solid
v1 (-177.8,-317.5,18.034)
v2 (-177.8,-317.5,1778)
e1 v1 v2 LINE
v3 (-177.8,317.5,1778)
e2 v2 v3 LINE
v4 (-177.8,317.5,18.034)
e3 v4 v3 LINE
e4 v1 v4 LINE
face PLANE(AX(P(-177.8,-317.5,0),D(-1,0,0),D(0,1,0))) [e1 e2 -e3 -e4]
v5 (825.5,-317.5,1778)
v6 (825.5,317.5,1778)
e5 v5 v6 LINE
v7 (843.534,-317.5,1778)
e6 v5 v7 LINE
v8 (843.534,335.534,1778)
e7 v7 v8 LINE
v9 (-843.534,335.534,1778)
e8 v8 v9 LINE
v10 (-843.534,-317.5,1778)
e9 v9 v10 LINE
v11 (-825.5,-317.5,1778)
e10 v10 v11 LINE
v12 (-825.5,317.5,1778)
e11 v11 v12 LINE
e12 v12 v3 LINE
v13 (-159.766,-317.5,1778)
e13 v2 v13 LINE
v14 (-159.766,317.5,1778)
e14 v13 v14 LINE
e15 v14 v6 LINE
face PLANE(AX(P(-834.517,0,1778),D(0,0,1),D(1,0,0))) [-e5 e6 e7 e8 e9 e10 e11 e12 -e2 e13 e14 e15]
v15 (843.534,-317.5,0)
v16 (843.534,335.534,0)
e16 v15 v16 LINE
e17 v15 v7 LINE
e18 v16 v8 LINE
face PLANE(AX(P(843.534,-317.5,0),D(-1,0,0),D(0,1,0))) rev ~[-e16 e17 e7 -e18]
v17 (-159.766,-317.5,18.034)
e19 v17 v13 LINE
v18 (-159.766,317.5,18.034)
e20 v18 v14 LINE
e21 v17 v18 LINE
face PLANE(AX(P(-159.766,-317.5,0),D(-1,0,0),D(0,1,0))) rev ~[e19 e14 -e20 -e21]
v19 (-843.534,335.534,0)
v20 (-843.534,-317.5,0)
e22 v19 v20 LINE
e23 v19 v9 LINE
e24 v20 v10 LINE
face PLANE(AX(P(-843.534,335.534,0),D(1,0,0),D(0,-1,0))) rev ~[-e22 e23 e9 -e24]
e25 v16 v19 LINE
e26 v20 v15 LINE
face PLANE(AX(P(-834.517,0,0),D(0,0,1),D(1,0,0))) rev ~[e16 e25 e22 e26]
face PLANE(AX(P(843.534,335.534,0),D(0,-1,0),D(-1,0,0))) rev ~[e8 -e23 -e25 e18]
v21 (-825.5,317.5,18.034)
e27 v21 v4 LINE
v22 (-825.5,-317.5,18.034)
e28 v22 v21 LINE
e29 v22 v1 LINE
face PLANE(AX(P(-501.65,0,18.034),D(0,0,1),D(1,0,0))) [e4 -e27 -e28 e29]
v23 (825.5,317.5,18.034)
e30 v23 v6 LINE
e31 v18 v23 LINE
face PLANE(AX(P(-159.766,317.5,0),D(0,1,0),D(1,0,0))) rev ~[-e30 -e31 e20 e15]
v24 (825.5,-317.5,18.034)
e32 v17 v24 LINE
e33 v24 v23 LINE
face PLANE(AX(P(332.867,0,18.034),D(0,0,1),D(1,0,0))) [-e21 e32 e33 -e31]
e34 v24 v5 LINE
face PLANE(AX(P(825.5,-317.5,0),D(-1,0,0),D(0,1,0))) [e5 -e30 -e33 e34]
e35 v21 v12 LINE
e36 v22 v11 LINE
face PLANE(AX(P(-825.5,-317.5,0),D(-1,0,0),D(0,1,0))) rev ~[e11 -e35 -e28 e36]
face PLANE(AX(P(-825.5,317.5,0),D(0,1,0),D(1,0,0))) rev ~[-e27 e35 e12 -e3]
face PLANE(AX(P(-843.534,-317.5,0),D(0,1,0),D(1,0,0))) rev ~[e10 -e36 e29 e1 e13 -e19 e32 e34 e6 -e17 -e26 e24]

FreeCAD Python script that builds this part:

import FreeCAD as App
import Part
import Sketcher
from FreeCAD import Vector
Q = App.Units.Quantity

doc = App.newDocument("Part")
body = doc.addObject("PartDesign::Body", "Body")

# Sketch on XY plane
sketch1 = body.newObject("Sketcher::SketchObject", "Sketch")
sketch1.AttachmentSupport = (doc.getObject("XY_Plane"), [""])
sketch1.MapMode = "FlatFace"
sketch1.addGeometry([
    Part.LineSegment(Vector(-826, 318, 0), Vector(-826, -318, 0)),
    Part.LineSegment(Vector(-826, -318, 0), Vector(-178, -318, 0)),
    Part.LineSegment(Vector(-178, -318, 0), Vector(-178, 318, 0)),
    Part.LineSegment(Vector(-178, 318, 0), Vector(-826, 318, 0)),
], False)
sketch1.addConstraint([
    Sketcher.Constraint("Coincident", 0, 2, 1, 1),
    Sketcher.Constraint("Coincident", 1, 2, 2, 1),
    Sketcher.Constraint("Coincident", 2, 2, 3, 1),
    Sketcher.Constraint("Coincident", 3, 2, 0, 1),
    Sketcher.Constraint("Vertical", 0),
    Sketcher.Constraint("Horizontal", 1),
    Sketcher.Constraint("Vertical", 2),
    Sketcher.Constraint("Horizontal", 3),
    Sketcher.Constraint("DistanceY", 0, 2, 0, 1, Q("25 in")),
    Sketcher.Constraint("DistanceX", 1, 1, 1, 2, Q("25.5 in")),
    Sketcher.Constraint("DistanceX", 1, 2, -1, 1, Q("7 in")),
    Sketcher.Constraint("DistanceY", 0, 2, -1, 1, Q("12.5 in")),
])
pad1 = body.newObject("PartDesign::Pad", "Pad")
pad1.Profile = sketch1
pad1.Length = Q("0.71 in")
body2 = doc.addObject("PartDesign::Body", "Body001")

# Sketch on XY plane
sketch2 = body2.newObject("Sketcher::SketchObject", "Sketch001")
sketch2.AttachmentSupport = (doc.getObject("XY_Plane001"), [""])
sketch2.MapMode = "FlatFace"
sketch2.addGeometry([
    Part.LineSegment(Vector(-160, 318, 0), Vector(-160, -318, 0)),
    Part.LineSegment(Vector(-160, -318, 0), Vector(826, -318, 0)),
    Part.LineSegment(Vector(826, -318, 0), Vector(826, 318, 0)),
    Part.LineSegment(Vector(826, 318, 0), Vector(-160, 318, 0)),
], False)
sketch2.addConstraint([
    Sketcher.Constraint("Coincident", 0, 2, 1, 1),
    Sketcher.Constraint("Coincident", 1, 2, 2, 1),
    Sketcher.Constraint("Coincident", 2, 2, 3, 1),
    Sketcher.Constraint("Coincident", 3, 2, 0, 1),
    Sketcher.Constraint("Vertical", 0),
    Sketcher.Constraint("Horizontal", 1),
    Sketcher.Constraint("Vertical", 2),
    Sketcher.Constraint("Horizontal", 3),
    Sketcher.Constraint("DistanceY", 0, 2, 0, 1, Q("25 in")),
    Sketcher.Constraint("DistanceX", 1, 1, 1, 2, Q("38.79 in")),
    Sketcher.Constraint("DistanceY", 0, 2, -1, 1, Q("12.5 in")),
    Sketcher.Constraint("DistanceX", -1, 1, 1, 2, Q("32.5 in")),
])
pad2 = body2.newObject("PartDesign::Pad", "Pad001")
pad2.Profile = sketch2
pad2.Length = Q("0.71 in")
body.AllowCompound = True
doc.recompute()

boolean = body.newObject("PartDesign::Boolean", "Boolean")
boolean.Type = "Fuse"
boolean.addObjects([body2])

# Sketch on XY plane
sketch3 = body.newObject("Sketcher::SketchObject", "Sketch002")
sketch3.AttachmentSupport = (doc.getObject("XY_Plane"), [""])
sketch3.MapMode = "FlatFace"
sketch3.addGeometry([
    Part.LineSegment(Vector(-844, -318, 0), Vector(-826, -318, 0)),  # 0
    Part.LineSegment(Vector(-826, -318, 0), Vector(-826, 318, 0)),  # 1
    Part.LineSegment(Vector(-826, 318, 0), Vector(-178, 318, 0)),  # 2
    Part.LineSegment(Vector(-178, 318, 0), Vector(-178, -318, 0)),  # 3
    Part.LineSegment(Vector(-178, -318, 0), Vector(-160, -318, 0)),  # 4
    Part.LineSegment(Vector(-160, -318, 0), Vector(-160, 318, 0)),  # 5
    Part.LineSegment(Vector(-160, 318, 0), Vector(826, 318, 0)),  # 6
    Part.LineSegment(Vector(826, 318, 0), Vector(826, -318, 0)),  # 7
    Part.LineSegment(Vector(826, -318, 0), Vector(844, -318, 0)),  # 8
    Part.LineSegment(Vector(844, -318, 0), Vector(844, 336, 0)),  # 9
    Part.LineSegment(Vector(844, 336, 0), Vector(-844, 336, 0)),  # 10
    Part.LineSegment(Vector(-844, 336, 0), Vector(-844, -318, 0)),  # 11
], False)
sketch3.addConstraint([
    Sketcher.Constraint("Coincident", 0, 2, 1, 1),
    Sketcher.Constraint("Coincident", 1, 2, 2, 1),
    Sketcher.Constraint("Coincident", 2, 2, 3, 1),
    Sketcher.Constraint("Coincident", 3, 2, 4, 1),
    Sketcher.Constraint("Coincident", 4, 2, 5, 1),
    Sketcher.Constraint("Coincident", 5, 2, 6, 1),
    Sketcher.Constraint("Coincident", 6, 2, 7, 1),
    Sketcher.Constraint("Coincident", 7, 2, 8, 1),
    Sketcher.Constraint("Coincident", 8, 2, 9, 1),
    Sketcher.Constraint("Coincident", 9, 2, 10, 1),
    Sketcher.Constraint("Coincident", 10, 2, 11, 1),
    Sketcher.Constraint("Coincident", 11, 2, 0, 1),
    Sketcher.Constraint("Horizontal", 0),
    Sketcher.Constraint("Vertical", 1),
    Sketcher.Constraint("Horizontal", 2),
    Sketcher.Constraint("Vertical", 3),
    Sketcher.Constraint("Horizontal", 4),
    Sketcher.Constraint("Vertical", 5),
    Sketcher.Constraint("Horizontal", 6),
    Sketcher.Constraint("Vertical", 7),
    Sketcher.Constraint("Horizontal", 8),
    Sketcher.Constraint("Vertical", 9),
    Sketcher.Constraint("Horizontal", 10),
    Sketcher.Constraint("Vertical", 11),
    Sketcher.Constraint("Symmetric", 0, 2, 6, 2, -1, 1),
    Sketcher.Constraint("Symmetric", 8, 2, 11, 2, -2),
    Sketcher.Constraint("Horizontal", 0, 2, 3, 2),
    Sketcher.Constraint("Horizontal", 2, 2, 5, 2),
    Sketcher.Constraint("Equal", 0, 4),
    Sketcher.Constraint("DistanceY", 1, 1, 1, 2, Q("25 in")),
    Sketcher.Constraint("DistanceX", 2, 1, 2, 2, Q("25.5 in")),
    Sketcher.Constraint("DistanceX", 2, 2, -1, 1, Q("7 in")),
    Sketcher.Constraint("DistanceX", 0, 1, 0, 2, Q("0.71 in")),
    Sketcher.Constraint("DistanceY", 9, 1, 9, 2, Q("25.71 in")),
])
pad3 = body.newObject("PartDesign::Pad", "Pad002")
pad3.Profile = sketch3
pad3.Length = Q("70 in")

doc.recompute()
